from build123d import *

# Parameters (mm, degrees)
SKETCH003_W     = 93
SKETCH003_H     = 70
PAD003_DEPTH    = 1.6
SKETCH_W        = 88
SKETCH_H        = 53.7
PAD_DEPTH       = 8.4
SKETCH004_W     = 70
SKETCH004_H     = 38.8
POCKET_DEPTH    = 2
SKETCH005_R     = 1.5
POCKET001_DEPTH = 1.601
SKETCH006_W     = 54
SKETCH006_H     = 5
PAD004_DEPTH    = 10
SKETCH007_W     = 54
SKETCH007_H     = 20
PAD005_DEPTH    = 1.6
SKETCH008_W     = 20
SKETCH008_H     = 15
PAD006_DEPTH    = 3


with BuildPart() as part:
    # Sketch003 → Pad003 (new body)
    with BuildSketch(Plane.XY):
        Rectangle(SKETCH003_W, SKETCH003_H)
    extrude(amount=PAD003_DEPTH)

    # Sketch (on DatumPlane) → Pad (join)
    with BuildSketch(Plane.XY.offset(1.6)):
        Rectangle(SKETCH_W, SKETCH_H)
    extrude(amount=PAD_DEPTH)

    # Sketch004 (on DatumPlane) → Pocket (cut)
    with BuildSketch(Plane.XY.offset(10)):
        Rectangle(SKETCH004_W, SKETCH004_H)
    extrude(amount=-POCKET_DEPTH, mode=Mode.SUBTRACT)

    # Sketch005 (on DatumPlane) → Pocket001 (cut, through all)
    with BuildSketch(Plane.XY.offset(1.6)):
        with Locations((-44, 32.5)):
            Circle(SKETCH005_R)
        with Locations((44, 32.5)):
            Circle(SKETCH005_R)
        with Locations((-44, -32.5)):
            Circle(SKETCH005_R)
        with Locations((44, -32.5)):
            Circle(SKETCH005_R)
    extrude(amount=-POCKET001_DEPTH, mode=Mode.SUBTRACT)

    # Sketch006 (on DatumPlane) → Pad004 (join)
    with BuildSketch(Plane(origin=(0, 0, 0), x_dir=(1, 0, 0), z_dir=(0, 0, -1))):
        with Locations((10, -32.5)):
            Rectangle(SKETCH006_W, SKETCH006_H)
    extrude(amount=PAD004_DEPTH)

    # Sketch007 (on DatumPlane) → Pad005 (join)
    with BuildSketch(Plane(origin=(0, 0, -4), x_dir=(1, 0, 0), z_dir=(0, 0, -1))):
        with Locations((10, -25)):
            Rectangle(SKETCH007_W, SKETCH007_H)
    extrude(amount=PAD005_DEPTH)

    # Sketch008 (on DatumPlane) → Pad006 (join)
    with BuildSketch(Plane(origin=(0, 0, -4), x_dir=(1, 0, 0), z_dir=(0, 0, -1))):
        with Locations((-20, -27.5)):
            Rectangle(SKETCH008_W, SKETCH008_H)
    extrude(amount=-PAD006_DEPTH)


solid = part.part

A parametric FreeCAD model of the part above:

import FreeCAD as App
import Part
import Sketcher

V = App.Vector
Q = App.Units.Quantity

doc = App.newDocument("Part")
body = doc.addObject("PartDesign::Body", "Body")

# Sketch on XY plane
sketch1 = body.newObject("Sketcher::SketchObject", "Sketch")
sketch1.AttachmentSupport = (doc.getObject("XY_Plane"), [""])
sketch1.MapMode = "FlatFace"
sketch1.addGeometry(Part.LineSegment(V(-46, 35, 0), V(-46, -35, 0)), False)
sketch1.addGeometry(Part.LineSegment(V(-46, -35, 0), V(46, -35, 0)), False)
sketch1.addGeometry(Part.LineSegment(V(46, -35, 0), V(46, 35, 0)), False)
sketch1.addGeometry(Part.LineSegment(V(46, 35, 0), V(-46, 35, 0)), False)
sketch1.addConstraint(Sketcher.Constraint("Coincident", 0, 2, 1, 1))
sketch1.addConstraint(Sketcher.Constraint("Coincident", 1, 2, 2, 1))
sketch1.addConstraint(Sketcher.Constraint("Coincident", 2, 2, 3, 1))
sketch1.addConstraint(Sketcher.Constraint("Coincident", 3, 2, 0, 1))
sketch1.addConstraint(Sketcher.Constraint("Vertical", 0))
sketch1.addConstraint(Sketcher.Constraint("Horizontal", 1))
sketch1.addConstraint(Sketcher.Constraint("Vertical", 2))
sketch1.addConstraint(Sketcher.Constraint("Horizontal", 3))
sketch1.addConstraint(Sketcher.Constraint("Symmetric", 0, 2, 2, 2, -1, 1))
sketch1.addConstraint(Sketcher.Constraint("DistanceX", 1, 1, 1, 2, Q("93 mm")))
sketch1.addConstraint(Sketcher.Constraint("DistanceY", 0, 2, 0, 1, Q("70 mm")))
pad1 = body.newObject("PartDesign::Pad", "Pad")
pad1.Profile = sketch1
pad1.Length = 1.6

# Sketch on XY plane
sketch2 = body.newObject("Sketcher::SketchObject", "Sketch001")
sketch2.AttachmentSupport = (doc.getObject("XY_Plane"), [""])
sketch2.MapMode = "FlatFace"
sketch2.AttachmentOffset = App.Placement(V(0, 0, 1.6), App.Rotation())
sketch2.addGeometry(Part.LineSegment(V(-44, 27, 0), V(-44, -27, 0)), False)
sketch2.addGeometry(Part.LineSegment(V(-44, -27, 0), V(44, -27, 0)), False)
sketch2.addGeometry(Part.LineSegment(V(44, -27, 0), V(44, 27, 0)), False)
sketch2.addGeometry(Part.LineSegment(V(44, 27, 0), V(-44, 27, 0)), False)
sketch2.addConstraint(Sketcher.Constraint("Coincident", 0, 2, 1, 1))
sketch2.addConstraint(Sketcher.Constraint("Coincident", 1, 2, 2, 1))
sketch2.addConstraint(Sketcher.Constraint("Coincident", 2, 2, 3, 1))
sketch2.addConstraint(Sketcher.Constraint("Coincident", 3, 2, 0, 1))
sketch2.addConstraint(Sketcher.Constraint("Vertical", 0))
sketch2.addConstraint(Sketcher.Constraint("Horizontal", 1))
sketch2.addConstraint(Sketcher.Constraint("Vertical", 2))
sketch2.addConstraint(Sketcher.Constraint("Horizontal", 3))
sketch2.addConstraint(Sketcher.Constraint("Symmetric", 0, 2, 2, 2, -1, 1))
sketch2.addConstraint(Sketcher.Constraint("DistanceX", 1, 1, 1, 2, Q("88 mm")))
sketch2.addConstraint(Sketcher.Constraint("DistanceY", 0, 2, 0, 1, Q("53.7 mm")))
pad2 = body.newObject("PartDesign::Pad", "Pad001")
pad2.Profile = sketch2
pad2.Length = 8.4

# Sketch on XY plane
sketch3 = body.newObject("Sketcher::SketchObject", "Sketch002")
sketch3.AttachmentSupport = (doc.getObject("XY_Plane"), [""])
sketch3.MapMode = "FlatFace"
sketch3.AttachmentOffset = App.Placement(V(0, 0, 10), App.Rotation())
sketch3.addGeometry(Part.LineSegment(V(-35, 19, 0), V(-35, -19, 0)), False)
sketch3.addGeometry(Part.LineSegment(V(-35, -19, 0), V(35, -19, 0)), False)
sketch3.addGeometry(Part.LineSegment(V(35, -19, 0), V(35, 19, 0)), False)
sketch3.addGeometry(Part.LineSegment(V(35, 19, 0), V(-35, 19, 0)), False)
sketch3.addConstraint(Sketcher.Constraint("Coincident", 0, 2, 1, 1))
sketch3.addConstraint(Sketcher.Constraint("Coincident", 1, 2, 2, 1))
sketch3.addConstraint(Sketcher.Constraint("Coincident", 2, 2, 3, 1))
sketch3.addConstraint(Sketcher.Constraint("Coincident", 3, 2, 0, 1))
sketch3.addConstraint(Sketcher.Constraint("Vertical", 0))
sketch3.addConstraint(Sketcher.Constraint("Horizontal", 1))
sketch3.addConstraint(Sketcher.Constraint("Vertical", 2))
sketch3.addConstraint(Sketcher.Constraint("Horizontal", 3))
sketch3.addConstraint(Sketcher.Constraint("Symmetric", 0, 2, 2, 2, -1, 1))
sketch3.addConstraint(Sketcher.Constraint("DistanceX", 1, 1, 1, 2, Q("70 mm")))
sketch3.addConstraint(Sketcher.Constraint("DistanceY", 0, 2, 0, 1, Q("38.8 mm")))
pocket1 = body.newObject("PartDesign::Pocket", "Pocket")
pocket1.Profile = sketch3
pocket1.Length = 2

# Sketch on XY plane
sketch4 = body.newObject("Sketcher::SketchObject", "Sketch003")
sketch4.AttachmentSupport = (doc.getObject("XY_Plane"), [""])
sketch4.MapMode = "FlatFace"
sketch4.AttachmentOffset = App.Placement(V(0, 0, 1.6), App.Rotation())
sketch4.addGeometry(Part.Circle(V(-44, 32.5, 0), V(0, 0, 1), 1.5), False)
sketch4.addGeometry(Part.Circle(V(44, 32.5, 0), V(0, 0, 1), 1.5), False)
sketch4.addGeometry(Part.Circle(V(-44, -32.5, 0), V(0, 0, 1), 1.5), False)
sketch4.addGeometry(Part.Circle(V(44, -32.5, 0), V(0, 0, 1), 1.5), False)
sketch4.addConstraint(Sketcher.Constraint("Equal", 0, 1))
sketch4.addConstraint(Sketcher.Constraint("Equal", 1, 2))
sketch4.addConstraint(Sketcher.Constraint("Equal", 2, 3))
sketch4.addConstraint(Sketcher.Constraint("Symmetric", 1, 3, 2, 3, -1, 1))
sketch4.addConstraint(Sketcher.Constraint("Symmetric", 0, 3, 3, 3, -1, 1))
sketch4.addConstraint(Sketcher.Constraint("Symmetric", 0, 3, 1, 3, -2))
sketch4.addConstraint(Sketcher.Constraint("Diameter", 0, Q("3 mm")))
sketch4.addConstraint(Sketcher.Constraint("DistanceX", 0, 3, -1, 1, Q("44 mm")))
sketch4.addConstraint(Sketcher.Constraint("DistanceY", 2, 3, 0, 3, Q("65 mm")))
pocket2 = body.newObject("PartDesign::Pocket", "Pocket001")
pocket2.Profile = sketch4
pocket2.Type = "ThroughAll"

# Sketch on XY plane
sketch5 = body.newObject("Sketcher::SketchObject", "Sketch004")
sketch5.AttachmentSupport = (doc.getObject("XY_Plane"), [""])
sketch5.MapMode = "FlatFace"
sketch5.addGeometry(Part.LineSegment(V(-17, 30, 0), V(-17, 35, 0)), False)
sketch5.addGeometry(Part.LineSegment(V(-17, 35, 0), V(37, 35, 0)), False)
sketch5.addGeometry(Part.LineSegment(V(37, 35, 0), V(37, 30, 0)), False)
sketch5.addGeometry(Part.LineSegment(V(37, 30, 0), V(-17, 30, 0)), False)
sketch5.addConstraint(Sketcher.Constraint("Coincident", 0, 2, 1, 1))
sketch5.addConstraint(Sketcher.Constraint("Coincident", 1, 2, 2, 1))
sketch5.addConstraint(Sketcher.Constraint("Coincident", 2, 2, 3, 1))
sketch5.addConstraint(Sketcher.Constraint("Coincident", 3, 2, 0, 1))
sketch5.addConstraint(Sketcher.Constraint("Vertical", 0))
sketch5.addConstraint(Sketcher.Constraint("Horizontal", 1))
sketch5.addConstraint(Sketcher.Constraint("Vertical", 2))
sketch5.addConstraint(Sketcher.Constraint("Horizontal", 3))
sketch5.addConstraint(Sketcher.Constraint("DistanceX", 1, 1, 1, 2, Q("54 mm")))
sketch5.addConstraint(Sketcher.Constraint("DistanceY", 0, 1, 0, 2, Q("5 mm")))
sketch5.addConstraint(Sketcher.Constraint("DistanceX", 0, 2, -1, 1, Q("17 mm")))
sketch5.addConstraint(Sketcher.Constraint("DistanceY", -1, 1, 0, 2, Q("35 mm")))
pad3 = body.newObject("PartDesign::Pad", "Pad002")
pad3.Profile = sketch5
pad3.Length = 10
pad3.Reversed = True

# Sketch on XY plane
sketch6 = body.newObject("Sketcher::SketchObject", "Sketch005")
sketch6.AttachmentSupport = (doc.getObject("XY_Plane"), [""])
sketch6.MapMode = "FlatFace"
sketch6.AttachmentOffset = App.Placement(V(0, 0, -4), App.Rotation())
sketch6.addGeometry(Part.LineSegment(V(-17, 15, 0), V(-17, 35, 0)), False)
sketch6.addGeometry(Part.LineSegment(V(-17, 35, 0), V(37, 35, 0)), False)
sketch6.addGeometry(Part.LineSegment(V(37, 35, 0), V(37, 15, 0)), False)
sketch6.addGeometry(Part.LineSegment(V(37, 15, 0), V(-17, 15, 0)), False)
sketch6.addConstraint(Sketcher.Constraint("Coincident", 0, 2, 1, 1))
sketch6.addConstraint(Sketcher.Constraint("Coincident", 1, 2, 2, 1))
sketch6.addConstraint(Sketcher.Constraint("Coincident", 2, 2, 3, 1))
sketch6.addConstraint(Sketcher.Constraint("Coincident", 3, 2, 0, 1))
sketch6.addConstraint(Sketcher.Constraint("Vertical", 0))
sketch6.addConstraint(Sketcher.Constraint("Horizontal", 1))
sketch6.addConstraint(Sketcher.Constraint("Vertical", 2))
sketch6.addConstraint(Sketcher.Constraint("Horizontal", 3))
sketch6.addConstraint(Sketcher.Constraint("DistanceX", 1, 1, 1, 2, Q("54 mm")))
sketch6.addConstraint(Sketcher.Constraint("DistanceY", 0, 1, 0, 2, Q("20 mm")))
sketch6.addConstraint(Sketcher.Constraint("DistanceX", 0, 2, -1, 1, Q("17 mm")))
sketch6.addConstraint(Sketcher.Constraint("DistanceY", -1, 1, 0, 2, Q("35 mm")))
pad4 = body.newObject("PartDesign::Pad", "Pad003")
pad4.Profile = sketch6
pad4.Length = 1.6
pad4.Reversed = True

# Sketch on XY plane
sketch7 = body.newObject("Sketcher::SketchObject", "Sketch006")
sketch7.AttachmentSupport = (doc.getObject("XY_Plane"), [""])
sketch7.MapMode = "FlatFace"
sketch7.AttachmentOffset = App.Placement(V(0, 0, -4), App.Rotation())
sketch7.addGeometry(Part.LineSegment(V(-30, 20, 0), V(-30, 35, 0)), False)
sketch7.addGeometry(Part.LineSegment(V(-30, 35, 0), V(-10, 35, 0)), False)
sketch7.addGeometry(Part.LineSegment(V(-10, 35, 0), V(-10, 20, 0)), False)
sketch7.addGeometry(Part.LineSegment(V(-10, 20, 0), V(-30, 20, 0)), False)
sketch7.addConstraint(Sketcher.Constraint("Coincident", 0, 2, 1, 1))
sketch7.addConstraint(Sketcher.Constraint("Coincident", 1, 2, 2, 1))
sketch7.addConstraint(Sketcher.Constraint("Coincident", 2, 2, 3, 1))
sketch7.addConstraint(Sketcher.Constraint("Coincident", 3, 2, 0, 1))
sketch7.addConstraint(Sketcher.Constraint("Vertical", 0))
sketch7.addConstraint(Sketcher.Constraint("Horizontal", 1))
sketch7.addConstraint(Sketcher.Constraint("Vertical", 2))
sketch7.addConstraint(Sketcher.Constraint("Horizontal", 3))
sketch7.addConstraint(Sketcher.Constraint("DistanceX", 1, 1, 1, 2, Q("20 mm")))
sketch7.addConstraint(Sketcher.Constraint("DistanceY", 0, 1, 0, 2, Q("15 mm")))
sketch7.addConstraint(Sketcher.Constraint("DistanceX", 0, 2, -1, 1, Q("30 mm")))
sketch7.addConstraint(Sketcher.Constraint("DistanceY", -1, 1, 0, 2, Q("35 mm")))
pad5 = body.newObject("PartDesign::Pad", "Pad004")
pad5.Profile = sketch7
pad5.Length = 3

doc.recompute()
